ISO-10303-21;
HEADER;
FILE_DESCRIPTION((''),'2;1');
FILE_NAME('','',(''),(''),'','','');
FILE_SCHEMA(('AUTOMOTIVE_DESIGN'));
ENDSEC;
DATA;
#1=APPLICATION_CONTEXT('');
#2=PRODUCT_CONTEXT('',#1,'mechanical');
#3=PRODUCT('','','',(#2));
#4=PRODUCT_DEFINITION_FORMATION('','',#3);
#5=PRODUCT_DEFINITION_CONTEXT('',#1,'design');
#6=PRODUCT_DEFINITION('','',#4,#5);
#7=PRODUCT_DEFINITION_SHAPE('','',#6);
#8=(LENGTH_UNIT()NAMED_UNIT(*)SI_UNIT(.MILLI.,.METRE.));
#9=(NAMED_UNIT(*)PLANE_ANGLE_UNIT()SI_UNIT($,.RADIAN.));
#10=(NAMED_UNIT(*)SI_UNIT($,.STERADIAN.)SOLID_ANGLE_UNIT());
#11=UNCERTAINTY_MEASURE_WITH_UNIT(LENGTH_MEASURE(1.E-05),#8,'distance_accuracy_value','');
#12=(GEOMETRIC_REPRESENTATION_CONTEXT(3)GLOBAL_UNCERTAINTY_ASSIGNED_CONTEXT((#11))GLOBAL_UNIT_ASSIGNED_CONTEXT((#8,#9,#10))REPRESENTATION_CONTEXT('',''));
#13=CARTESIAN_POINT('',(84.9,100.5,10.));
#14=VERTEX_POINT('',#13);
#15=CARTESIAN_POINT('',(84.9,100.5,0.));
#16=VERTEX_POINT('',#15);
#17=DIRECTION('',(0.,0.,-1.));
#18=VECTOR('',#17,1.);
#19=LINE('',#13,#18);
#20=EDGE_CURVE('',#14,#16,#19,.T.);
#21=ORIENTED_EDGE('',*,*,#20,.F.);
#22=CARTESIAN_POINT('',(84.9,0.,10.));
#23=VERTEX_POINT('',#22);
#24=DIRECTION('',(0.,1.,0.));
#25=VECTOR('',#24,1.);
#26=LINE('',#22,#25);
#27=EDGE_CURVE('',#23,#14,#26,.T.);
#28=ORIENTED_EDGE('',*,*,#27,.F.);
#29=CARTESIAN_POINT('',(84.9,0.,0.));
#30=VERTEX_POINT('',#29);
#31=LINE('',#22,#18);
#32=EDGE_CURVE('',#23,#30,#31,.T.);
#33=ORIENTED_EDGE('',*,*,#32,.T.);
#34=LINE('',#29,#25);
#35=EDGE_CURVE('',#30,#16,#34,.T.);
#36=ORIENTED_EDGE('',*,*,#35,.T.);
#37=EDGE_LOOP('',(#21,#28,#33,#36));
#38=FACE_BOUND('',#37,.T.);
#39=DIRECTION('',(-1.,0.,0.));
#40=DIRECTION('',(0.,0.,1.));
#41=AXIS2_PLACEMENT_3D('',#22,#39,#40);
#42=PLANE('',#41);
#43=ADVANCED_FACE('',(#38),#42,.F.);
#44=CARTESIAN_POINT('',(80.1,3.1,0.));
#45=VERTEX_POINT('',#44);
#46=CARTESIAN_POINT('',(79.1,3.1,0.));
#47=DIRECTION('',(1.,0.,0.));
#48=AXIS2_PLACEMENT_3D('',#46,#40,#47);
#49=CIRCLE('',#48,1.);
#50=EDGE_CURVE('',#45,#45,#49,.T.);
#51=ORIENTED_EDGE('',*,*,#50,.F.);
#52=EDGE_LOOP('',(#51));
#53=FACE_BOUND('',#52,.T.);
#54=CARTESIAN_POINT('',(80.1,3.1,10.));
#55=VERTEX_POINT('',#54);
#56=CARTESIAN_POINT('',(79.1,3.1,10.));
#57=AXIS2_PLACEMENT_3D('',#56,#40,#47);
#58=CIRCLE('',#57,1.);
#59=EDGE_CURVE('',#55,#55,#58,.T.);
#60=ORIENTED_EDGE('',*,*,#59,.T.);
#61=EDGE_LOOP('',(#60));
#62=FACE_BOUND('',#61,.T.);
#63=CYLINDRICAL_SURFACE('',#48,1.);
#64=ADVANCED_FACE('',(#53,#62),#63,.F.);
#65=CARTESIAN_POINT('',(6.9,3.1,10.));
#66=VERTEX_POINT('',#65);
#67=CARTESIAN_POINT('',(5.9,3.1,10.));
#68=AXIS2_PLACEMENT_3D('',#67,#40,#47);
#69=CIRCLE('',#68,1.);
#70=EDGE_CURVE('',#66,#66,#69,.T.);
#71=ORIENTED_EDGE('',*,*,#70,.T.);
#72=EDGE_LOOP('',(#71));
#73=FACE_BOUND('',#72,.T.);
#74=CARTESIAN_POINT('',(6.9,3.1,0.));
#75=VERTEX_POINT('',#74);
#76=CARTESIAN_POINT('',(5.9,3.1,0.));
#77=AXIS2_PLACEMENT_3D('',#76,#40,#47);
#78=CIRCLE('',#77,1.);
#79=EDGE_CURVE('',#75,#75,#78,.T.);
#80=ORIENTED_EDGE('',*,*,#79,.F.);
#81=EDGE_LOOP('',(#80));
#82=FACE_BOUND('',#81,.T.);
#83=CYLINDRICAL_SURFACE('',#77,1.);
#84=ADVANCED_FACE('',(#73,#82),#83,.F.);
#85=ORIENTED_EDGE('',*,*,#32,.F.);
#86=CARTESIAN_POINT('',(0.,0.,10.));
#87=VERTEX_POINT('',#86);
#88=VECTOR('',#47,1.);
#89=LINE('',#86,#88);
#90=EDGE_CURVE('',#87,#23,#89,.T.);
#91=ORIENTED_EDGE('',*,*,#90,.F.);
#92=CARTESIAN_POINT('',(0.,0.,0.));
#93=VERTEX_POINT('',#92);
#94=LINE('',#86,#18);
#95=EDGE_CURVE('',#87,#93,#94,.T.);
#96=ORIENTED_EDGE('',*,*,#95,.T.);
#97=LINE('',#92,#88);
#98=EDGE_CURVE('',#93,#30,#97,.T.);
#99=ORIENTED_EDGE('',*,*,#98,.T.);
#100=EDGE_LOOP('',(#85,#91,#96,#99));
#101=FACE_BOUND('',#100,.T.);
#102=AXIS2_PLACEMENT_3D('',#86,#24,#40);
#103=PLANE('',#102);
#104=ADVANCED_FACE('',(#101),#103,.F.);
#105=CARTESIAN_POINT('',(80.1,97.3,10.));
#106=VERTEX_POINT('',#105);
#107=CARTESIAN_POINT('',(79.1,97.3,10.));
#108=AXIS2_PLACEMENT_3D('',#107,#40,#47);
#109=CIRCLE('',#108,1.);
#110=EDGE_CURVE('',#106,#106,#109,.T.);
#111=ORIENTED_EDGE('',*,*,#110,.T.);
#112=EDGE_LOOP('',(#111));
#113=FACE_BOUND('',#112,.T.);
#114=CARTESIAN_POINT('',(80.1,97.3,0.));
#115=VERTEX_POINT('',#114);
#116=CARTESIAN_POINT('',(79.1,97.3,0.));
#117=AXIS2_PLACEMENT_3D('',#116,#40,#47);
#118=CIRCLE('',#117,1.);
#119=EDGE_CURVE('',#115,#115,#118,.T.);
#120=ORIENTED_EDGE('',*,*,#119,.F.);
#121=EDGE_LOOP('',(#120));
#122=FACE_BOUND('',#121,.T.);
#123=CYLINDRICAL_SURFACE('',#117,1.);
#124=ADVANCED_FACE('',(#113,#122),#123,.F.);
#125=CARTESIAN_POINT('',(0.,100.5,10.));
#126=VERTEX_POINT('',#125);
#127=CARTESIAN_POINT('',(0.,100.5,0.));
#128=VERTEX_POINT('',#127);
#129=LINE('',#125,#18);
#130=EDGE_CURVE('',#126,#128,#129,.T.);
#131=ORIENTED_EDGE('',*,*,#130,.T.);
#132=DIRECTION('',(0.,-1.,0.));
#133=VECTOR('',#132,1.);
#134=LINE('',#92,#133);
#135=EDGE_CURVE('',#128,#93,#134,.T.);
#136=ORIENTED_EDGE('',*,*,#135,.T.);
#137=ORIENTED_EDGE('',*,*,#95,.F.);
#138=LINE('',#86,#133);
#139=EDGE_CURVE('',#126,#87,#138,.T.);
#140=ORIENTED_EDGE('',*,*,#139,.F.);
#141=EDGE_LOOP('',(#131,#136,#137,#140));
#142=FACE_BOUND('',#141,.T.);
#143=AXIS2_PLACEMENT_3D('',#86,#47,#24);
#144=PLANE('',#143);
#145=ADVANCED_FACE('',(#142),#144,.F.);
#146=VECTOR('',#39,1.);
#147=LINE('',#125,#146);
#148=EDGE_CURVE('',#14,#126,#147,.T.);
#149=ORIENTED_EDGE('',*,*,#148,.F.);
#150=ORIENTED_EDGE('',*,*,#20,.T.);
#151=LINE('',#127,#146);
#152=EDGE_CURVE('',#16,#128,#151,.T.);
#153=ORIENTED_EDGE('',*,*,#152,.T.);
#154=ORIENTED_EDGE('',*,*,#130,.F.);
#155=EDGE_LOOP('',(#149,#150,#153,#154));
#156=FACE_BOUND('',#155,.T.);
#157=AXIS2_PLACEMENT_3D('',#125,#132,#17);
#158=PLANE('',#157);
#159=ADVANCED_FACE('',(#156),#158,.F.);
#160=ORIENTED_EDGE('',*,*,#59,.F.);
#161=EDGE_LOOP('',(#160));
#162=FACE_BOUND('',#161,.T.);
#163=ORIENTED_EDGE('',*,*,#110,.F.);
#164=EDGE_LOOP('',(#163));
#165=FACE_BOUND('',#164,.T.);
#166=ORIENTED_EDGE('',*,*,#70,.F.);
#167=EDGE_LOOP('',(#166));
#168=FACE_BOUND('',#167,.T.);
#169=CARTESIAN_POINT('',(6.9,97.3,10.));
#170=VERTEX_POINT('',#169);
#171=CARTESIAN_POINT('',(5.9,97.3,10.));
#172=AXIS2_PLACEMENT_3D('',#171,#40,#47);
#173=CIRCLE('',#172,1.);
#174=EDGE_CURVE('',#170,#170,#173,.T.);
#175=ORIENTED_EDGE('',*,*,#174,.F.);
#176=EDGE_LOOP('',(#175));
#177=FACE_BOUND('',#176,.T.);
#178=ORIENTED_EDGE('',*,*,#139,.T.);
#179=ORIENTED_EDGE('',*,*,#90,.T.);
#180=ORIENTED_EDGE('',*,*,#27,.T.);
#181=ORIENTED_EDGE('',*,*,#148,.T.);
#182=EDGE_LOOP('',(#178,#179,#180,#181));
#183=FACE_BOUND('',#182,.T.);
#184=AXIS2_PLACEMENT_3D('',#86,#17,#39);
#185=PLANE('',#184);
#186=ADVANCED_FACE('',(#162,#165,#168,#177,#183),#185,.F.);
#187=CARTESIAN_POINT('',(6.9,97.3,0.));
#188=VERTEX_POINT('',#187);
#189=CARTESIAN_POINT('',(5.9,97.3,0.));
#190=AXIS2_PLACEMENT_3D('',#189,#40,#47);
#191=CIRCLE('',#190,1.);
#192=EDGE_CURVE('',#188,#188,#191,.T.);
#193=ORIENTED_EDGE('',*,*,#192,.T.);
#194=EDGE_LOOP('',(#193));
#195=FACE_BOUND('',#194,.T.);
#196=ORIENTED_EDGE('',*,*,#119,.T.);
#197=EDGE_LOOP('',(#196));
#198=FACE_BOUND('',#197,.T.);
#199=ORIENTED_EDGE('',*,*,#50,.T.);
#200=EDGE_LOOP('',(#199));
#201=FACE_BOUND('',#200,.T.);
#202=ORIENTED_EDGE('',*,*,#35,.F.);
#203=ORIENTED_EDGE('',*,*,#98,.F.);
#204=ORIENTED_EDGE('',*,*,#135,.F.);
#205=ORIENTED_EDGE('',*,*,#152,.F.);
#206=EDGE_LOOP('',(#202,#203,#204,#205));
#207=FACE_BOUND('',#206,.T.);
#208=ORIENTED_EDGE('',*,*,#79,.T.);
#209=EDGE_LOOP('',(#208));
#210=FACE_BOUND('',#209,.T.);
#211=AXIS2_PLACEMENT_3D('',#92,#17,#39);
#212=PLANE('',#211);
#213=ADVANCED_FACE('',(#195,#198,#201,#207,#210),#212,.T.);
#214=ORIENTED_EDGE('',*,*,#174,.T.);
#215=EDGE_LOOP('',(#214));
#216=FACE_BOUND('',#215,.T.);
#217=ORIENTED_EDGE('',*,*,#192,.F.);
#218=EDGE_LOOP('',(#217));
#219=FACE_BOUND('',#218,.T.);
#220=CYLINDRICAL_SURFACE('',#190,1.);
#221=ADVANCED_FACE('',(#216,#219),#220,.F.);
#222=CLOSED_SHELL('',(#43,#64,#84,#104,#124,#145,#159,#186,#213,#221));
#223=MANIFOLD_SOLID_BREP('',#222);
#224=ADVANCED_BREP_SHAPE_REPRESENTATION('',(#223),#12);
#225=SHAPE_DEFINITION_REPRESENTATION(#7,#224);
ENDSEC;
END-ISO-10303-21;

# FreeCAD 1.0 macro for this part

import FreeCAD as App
import Part
import Sketcher

V = App.Vector

doc = App.newDocument("Part")
params = doc.addObject("Spreadsheet::Sheet", "Params")
for row, (alias, value) in enumerate([
    ("sketch1_width", "84.9 mm"),
    ("sketch1_height", "100.5 mm"),
    ("pad1_length", "10 mm"),
    ("sketch2_diameter", "2 mm"),
], start=1):
    params.set(f"A{row}", alias)
    params.set(f"B{row}", "=" + value)
    params.setAlias(f"B{row}", alias)

body = doc.addObject("PartDesign::Body", "Body")

sketch1 = body.newObject("Sketcher::SketchObject", "Sketch")
sketch1.AttachmentSupport = (doc.getObject("XY_Plane"), [""])
sketch1.MapMode = "FlatFace"
sketch1.addGeometry([
    Part.LineSegment(V(0, 100, 0), V(0, 0, 0)),
    Part.LineSegment(V(0, 0, 0), V(85, 0, 0)),
    Part.LineSegment(V(85, 0, 0), V(85, 100, 0)),
    Part.LineSegment(V(85, 100, 0), V(0, 100, 0)),
], False)
sketch1.addConstraint([
    Sketcher.Constraint("Coincident", 0, 2, 1, 1),
    Sketcher.Constraint("Coincident", 1, 2, 2, 1),
    Sketcher.Constraint("Coincident", 2, 2, 3, 1),
    Sketcher.Constraint("Coincident", 3, 2, 0, 1),
    Sketcher.Constraint("Vertical", 0),
    Sketcher.Constraint("Horizontal", 1),
    Sketcher.Constraint("Vertical", 2),
    Sketcher.Constraint("Horizontal", 3),
    Sketcher.Constraint("Coincident", 0, 2, -1, 1),
    Sketcher.Constraint("DistanceX", 1, 1, 1, 2, 84.9),
    Sketcher.Constraint("DistanceY", 0, 2, 0, 1, 100.5),
])
sketch1.setExpression("Constraints[9]", "Params.sketch1_width")
sketch1.setExpression("Constraints[10]", "Params.sketch1_height")
pad1 = body.newObject("PartDesign::Pad", "Pad")
pad1.Profile = sketch1
pad1.setExpression("Length", "Params.pad1_length")

sketch2 = body.newObject("Sketcher::SketchObject", "Sketch001")
sketch2.AttachmentSupport = (doc.getObject("XY_Plane"), [""])
sketch2.MapMode = "FlatFace"
sketch2.AttachmentOffset = App.Placement(V(0, 0, 10), App.Rotation())
sketch2.addGeometry([
    Part.Circle(V(79.1, 97.3, 0), V(0, 0, 1), 1),
    Part.Circle(V(5.9, 97.3, 0), V(0, 0, 1), 1),
    Part.Circle(V(5.9, 3.1, 0), V(0, 0, 1), 1),
    Part.Circle(V(79.1, 3.1, 0), V(0, 0, 1), 1),
], False)
sketch2.addConstraint([
    Sketcher.Constraint("Equal", 0, 1),
    Sketcher.Constraint("Equal", 1, 2),
    Sketcher.Constraint("Equal", 2, 3),
    Sketcher.Constraint("Horizontal", 0, 3, 1, 3),
    Sketcher.Constraint("Horizontal", 2, 3, 3, 3),
    Sketcher.Constraint("Vertical", 1, 3, 2, 3),
    Sketcher.Constraint("Vertical", 0, 3, 3, 3),
    Sketcher.Constraint("Diameter", 0, 2.0),
    Sketcher.Constraint("DistanceX", -1, 1, 0, 3, 79.1),
    Sketcher.Constraint("DistanceY", -1, 1, 0, 3, 97.3),
    Sketcher.Constraint("DistanceX", -1, 1, 1, 3, 5.9),
    Sketcher.Constraint("DistanceY", -1, 1, 2, 3, 3.1),
])
sketch2.setExpression("Constraints[7]", "Params.sketch2_diameter")
pocket1 = body.newObject("PartDesign::Pocket", "Pocket")
pocket1.Profile = sketch2
pocket1.Type = "ThroughAll"

doc.recompute()
